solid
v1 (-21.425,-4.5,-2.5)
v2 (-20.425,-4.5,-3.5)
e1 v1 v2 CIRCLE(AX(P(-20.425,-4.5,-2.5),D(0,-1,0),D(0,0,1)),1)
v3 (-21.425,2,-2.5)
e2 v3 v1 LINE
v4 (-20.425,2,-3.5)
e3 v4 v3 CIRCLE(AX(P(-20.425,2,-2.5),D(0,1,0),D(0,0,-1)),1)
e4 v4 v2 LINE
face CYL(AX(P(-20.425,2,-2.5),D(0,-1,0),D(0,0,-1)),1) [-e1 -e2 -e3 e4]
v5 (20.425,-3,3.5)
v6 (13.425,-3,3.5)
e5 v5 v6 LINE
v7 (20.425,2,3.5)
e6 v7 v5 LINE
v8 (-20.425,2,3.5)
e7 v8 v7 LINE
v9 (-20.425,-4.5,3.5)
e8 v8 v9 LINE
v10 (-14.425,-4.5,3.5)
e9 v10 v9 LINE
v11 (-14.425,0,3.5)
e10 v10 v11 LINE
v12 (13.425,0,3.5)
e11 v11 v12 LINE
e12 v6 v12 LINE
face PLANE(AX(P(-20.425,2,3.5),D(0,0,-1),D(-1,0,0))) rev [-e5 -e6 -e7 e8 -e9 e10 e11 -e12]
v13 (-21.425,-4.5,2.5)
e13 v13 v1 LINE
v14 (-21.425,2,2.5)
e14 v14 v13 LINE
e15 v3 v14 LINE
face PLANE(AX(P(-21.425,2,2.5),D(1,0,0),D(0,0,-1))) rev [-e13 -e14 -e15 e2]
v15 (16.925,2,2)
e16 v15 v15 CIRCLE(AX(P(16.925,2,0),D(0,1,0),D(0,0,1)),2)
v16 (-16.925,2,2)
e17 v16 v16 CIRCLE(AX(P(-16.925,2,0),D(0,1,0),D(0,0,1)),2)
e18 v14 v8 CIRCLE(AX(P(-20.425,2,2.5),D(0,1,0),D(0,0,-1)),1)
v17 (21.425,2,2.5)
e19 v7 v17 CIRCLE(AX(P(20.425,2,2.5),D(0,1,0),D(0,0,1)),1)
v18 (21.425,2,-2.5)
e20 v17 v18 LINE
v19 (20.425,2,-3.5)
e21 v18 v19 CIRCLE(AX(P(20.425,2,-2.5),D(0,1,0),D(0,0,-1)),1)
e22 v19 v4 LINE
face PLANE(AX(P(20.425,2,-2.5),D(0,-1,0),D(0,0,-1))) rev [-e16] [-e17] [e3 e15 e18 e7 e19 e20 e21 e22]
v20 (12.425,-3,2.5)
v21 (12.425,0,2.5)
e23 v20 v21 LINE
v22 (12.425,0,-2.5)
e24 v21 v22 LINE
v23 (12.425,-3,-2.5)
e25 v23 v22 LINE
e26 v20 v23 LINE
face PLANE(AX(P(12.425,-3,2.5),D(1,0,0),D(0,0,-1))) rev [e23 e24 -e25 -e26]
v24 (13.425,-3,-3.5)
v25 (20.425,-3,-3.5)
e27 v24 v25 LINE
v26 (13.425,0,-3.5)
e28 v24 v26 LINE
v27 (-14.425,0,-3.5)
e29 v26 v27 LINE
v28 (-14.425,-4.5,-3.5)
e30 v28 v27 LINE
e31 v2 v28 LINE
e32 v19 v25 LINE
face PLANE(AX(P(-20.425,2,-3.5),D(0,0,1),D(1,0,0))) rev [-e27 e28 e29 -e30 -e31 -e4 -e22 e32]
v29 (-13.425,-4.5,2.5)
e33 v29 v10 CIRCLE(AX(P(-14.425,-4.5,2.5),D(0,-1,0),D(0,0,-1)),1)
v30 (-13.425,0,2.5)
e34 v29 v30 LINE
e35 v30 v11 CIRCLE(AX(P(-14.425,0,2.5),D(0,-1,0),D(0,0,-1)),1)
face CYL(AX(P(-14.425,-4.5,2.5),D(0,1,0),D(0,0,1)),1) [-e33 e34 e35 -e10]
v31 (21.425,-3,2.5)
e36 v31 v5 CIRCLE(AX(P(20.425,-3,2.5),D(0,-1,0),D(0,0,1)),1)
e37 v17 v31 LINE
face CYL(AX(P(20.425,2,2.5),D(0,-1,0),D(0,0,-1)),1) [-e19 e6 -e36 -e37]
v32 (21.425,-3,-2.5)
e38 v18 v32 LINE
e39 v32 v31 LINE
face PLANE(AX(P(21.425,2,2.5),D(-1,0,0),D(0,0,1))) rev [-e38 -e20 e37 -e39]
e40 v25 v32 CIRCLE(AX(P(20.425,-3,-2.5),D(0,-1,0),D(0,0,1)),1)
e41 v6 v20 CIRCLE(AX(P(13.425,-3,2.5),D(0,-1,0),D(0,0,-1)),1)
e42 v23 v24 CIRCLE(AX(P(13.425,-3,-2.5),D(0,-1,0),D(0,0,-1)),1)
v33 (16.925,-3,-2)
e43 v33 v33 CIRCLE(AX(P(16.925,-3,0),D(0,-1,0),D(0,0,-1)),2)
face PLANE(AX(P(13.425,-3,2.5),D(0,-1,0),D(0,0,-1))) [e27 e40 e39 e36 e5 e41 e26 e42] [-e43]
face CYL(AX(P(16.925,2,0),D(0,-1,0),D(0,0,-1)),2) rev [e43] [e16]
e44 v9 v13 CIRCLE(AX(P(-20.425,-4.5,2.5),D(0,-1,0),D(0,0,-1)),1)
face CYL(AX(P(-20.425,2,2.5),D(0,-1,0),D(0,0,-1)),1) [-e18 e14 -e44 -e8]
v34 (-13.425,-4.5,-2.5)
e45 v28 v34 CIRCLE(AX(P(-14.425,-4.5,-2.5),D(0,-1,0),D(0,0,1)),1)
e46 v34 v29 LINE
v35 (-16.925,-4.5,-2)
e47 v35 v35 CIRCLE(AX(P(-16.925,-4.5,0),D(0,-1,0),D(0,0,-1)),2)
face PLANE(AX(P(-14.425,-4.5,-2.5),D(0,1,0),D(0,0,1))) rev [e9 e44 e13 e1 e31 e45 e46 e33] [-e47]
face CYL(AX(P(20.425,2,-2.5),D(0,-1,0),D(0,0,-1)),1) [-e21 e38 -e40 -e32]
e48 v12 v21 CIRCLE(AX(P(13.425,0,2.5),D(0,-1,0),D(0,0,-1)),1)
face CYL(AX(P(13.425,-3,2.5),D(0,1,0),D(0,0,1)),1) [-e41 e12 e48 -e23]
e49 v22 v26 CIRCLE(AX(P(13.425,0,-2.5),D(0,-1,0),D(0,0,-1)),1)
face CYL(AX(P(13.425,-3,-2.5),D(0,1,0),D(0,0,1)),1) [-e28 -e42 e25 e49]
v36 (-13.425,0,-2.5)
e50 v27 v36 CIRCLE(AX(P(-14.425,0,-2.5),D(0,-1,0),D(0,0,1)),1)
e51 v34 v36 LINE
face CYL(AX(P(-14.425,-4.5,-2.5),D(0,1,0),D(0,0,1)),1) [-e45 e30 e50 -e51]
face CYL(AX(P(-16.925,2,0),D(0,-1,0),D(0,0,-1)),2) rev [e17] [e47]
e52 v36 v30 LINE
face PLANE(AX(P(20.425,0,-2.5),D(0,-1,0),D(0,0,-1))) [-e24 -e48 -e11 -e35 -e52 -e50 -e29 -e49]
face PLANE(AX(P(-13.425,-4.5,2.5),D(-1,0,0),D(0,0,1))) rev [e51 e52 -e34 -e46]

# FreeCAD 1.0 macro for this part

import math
import FreeCAD as App
import Part
import Sketcher
from FreeCAD import Vector
Q = App.Units.Quantity

doc = App.newDocument("Part")
body = doc.addObject("PartDesign::Body", "Body")

# Sketch on XZ plane
sketch1 = doc.addObject("Sketcher::SketchObject", "Sketch")
body.addObject(sketch1)
sketch1.AttachmentSupport = (doc.XZ_Plane, [""])
sketch1.MapMode = "FlatFace"
sketch1.addGeometry([
    Part.LineSegment(Vector(-20.425, 3.5, 0), Vector(20.425, 3.5, 0)),  # 0
    Part.ArcOfCircle(Part.Circle(Vector(20.425, 2.5, 0), Vector(0, 0, 1), 1), math.radians(0), math.radians(90)),  # 1
    Part.LineSegment(Vector(21.425, 2.5, 0), Vector(21.425, -2.5, 0)),  # 2
    Part.ArcOfCircle(Part.Circle(Vector(20.425, -2.5, 0), Vector(0, 0, 1), 1), math.radians(-90), math.radians(0)),  # 3
    Part.LineSegment(Vector(20.425, -3.5, 0), Vector(-20.425, -3.5, 0)),  # 4
    Part.ArcOfCircle(Part.Circle(Vector(-20.425, -2.5, 0), Vector(0, 0, 1), 1), math.radians(-180), math.radians(-90)),  # 5
    Part.LineSegment(Vector(-21.425, -2.5, 0), Vector(-21.425, 2.5, 0)),  # 6
    Part.ArcOfCircle(Part.Circle(Vector(-20.425, 2.5, 0), Vector(0, 0, 1), 1), math.radians(90), math.radians(180)),  # 7
    Part.Circle(Vector(-16.925, 0, 0), Vector(0, 0, 1), 2),  # 8
    Part.Circle(Vector(16.925, 0, 0), Vector(0, 0, 1), 2),  # 9
], False)
sketch1.addConstraint([
    Sketcher.Constraint("Tangent", 0, 2, 1, 2),
    Sketcher.Constraint("Tangent", 1, 1, 2, 1),
    Sketcher.Constraint("Tangent", 2, 2, 3, 2),
    Sketcher.Constraint("Tangent", 3, 1, 4, 1),
    Sketcher.Constraint("Tangent", 4, 2, 5, 2),
    Sketcher.Constraint("Tangent", 5, 1, 6, 1),
    Sketcher.Constraint("Tangent", 6, 2, 7, 2),
    Sketcher.Constraint("Tangent", 7, 1, 0, 1),
    Sketcher.Constraint("Horizontal", 0),
    Sketcher.Constraint("Vertical", 2),
    Sketcher.Constraint("Horizontal", 4),
    Sketcher.Constraint("Vertical", 6),
    Sketcher.Constraint("Equal", 1, 3),
    Sketcher.Constraint("Equal", 3, 5),
    Sketcher.Constraint("Equal", 5, 7),
    Sketcher.Constraint("Equal", 8, 9),
    Sketcher.Constraint("Symmetric", 1, 3, 5, 3, -1, 1),
    Sketcher.Constraint("Symmetric", 8, 3, 9, 3, -1, 1),
    Sketcher.Constraint("PointOnObject", 8, 3, -1),
    Sketcher.Constraint("Diameter", 8, Q("4 mm")),
    Sketcher.Constraint("Radius", 1, Q("1 mm")),
    Sketcher.Constraint("DistanceY", 2, 2, 2, 1, Q("5 mm")),
    Sketcher.Constraint("DistanceX", 0, 1, 0, 2, Q("40.85 mm")),
    Sketcher.Constraint("DistanceX", 5, 3, 8, 3, Q("3.5 mm")),
])
pad1 = doc.addObject("PartDesign::Pad", "Pad")
body.addObject(pad1)
pad1.Profile = sketch1
pad1.Length = 2
pad1.Reversed = True

# Sketch on XZ plane
sketch2 = doc.addObject("Sketcher::SketchObject", "Sketch001")
body.addObject(sketch2)
sketch2.AttachmentSupport = (doc.XZ_Plane, [""])
sketch2.MapMode = "FlatFace"
sketch2.AttachmentOffset = App.Placement(Vector(0, 0, 4.5), App.Rotation())
sketch2.addGeometry([
    Part.LineSegment(Vector(-20.425, -3.5, 0), Vector(-14.425, -3.5, 0)),  # 0
    Part.ArcOfCircle(Part.Circle(Vector(-14.425, -2.5, 0), Vector(0, 0, 1), 1), math.radians(-90), math.radians(0)),  # 1
    Part.LineSegment(Vector(-13.425, -2.5, 0), Vector(-13.425, 2.5, 0)),  # 2
    Part.ArcOfCircle(Part.Circle(Vector(-14.425, 2.5, 0), Vector(0, 0, 1), 1), math.radians(0), math.radians(90)),  # 3
    Part.LineSegment(Vector(-14.425, 3.5, 0), Vector(-20.425, 3.5, 0)),  # 4
    Part.ArcOfCircle(Part.Circle(Vector(-20.425, 2.5, 0), Vector(0, 0, 1), 1), math.radians(90), math.radians(180)),  # 5
    Part.LineSegment(Vector(-21.425, 2.5, 0), Vector(-21.425, -2.5, 0)),  # 6
    Part.ArcOfCircle(Part.Circle(Vector(-20.425, -2.5, 0), Vector(0, 0, 1), 1), math.radians(-180), math.radians(-90)),  # 7
    Part.Circle(Vector(-16.925, 0, 0), Vector(0, 0, 1), 2),  # 8
], False)
sketch2.addConstraint([
    Sketcher.Constraint("Tangent", 0, 2, 1, 1),
    Sketcher.Constraint("Tangent", 1, 2, 2, 1),
    Sketcher.Constraint("Tangent", 2, 2, 3, 1),
    Sketcher.Constraint("Tangent", 3, 2, 4, 1),
    Sketcher.Constraint("Tangent", 4, 2, 5, 1),
    Sketcher.Constraint("Tangent", 5, 2, 6, 1),
    Sketcher.Constraint("Tangent", 6, 2, 7, 1),
    Sketcher.Constraint("Tangent", 7, 2, 0, 1),
    Sketcher.Constraint("Horizontal", 0),
    Sketcher.Constraint("Vertical", 2),
    Sketcher.Constraint("Horizontal", 4),
    Sketcher.Constraint("Vertical", 6),
    Sketcher.Constraint("Equal", 1, 3),
    Sketcher.Constraint("Equal", 3, 5),
    Sketcher.Constraint("Equal", 5, 7),
    Sketcher.Constraint("PointOnObject", 8, 3, -1),
    Sketcher.Constraint("Diameter", 8, Q("4 mm")),
    Sketcher.Constraint("Radius", 1, Q("1 mm")),
    Sketcher.Constraint("DistanceX", 0, 1, 0, 2, Q("6 mm")),
    Sketcher.Constraint("DistanceY", 2, 1, 2, 2, Q("5 mm")),
    Sketcher.Constraint("DistanceY", 1, 3, -1, 1, Q("2.5 mm")),
    Sketcher.Constraint("DistanceX", 8, 3, 1, 3, Q("2.5 mm")),
    Sketcher.Constraint("DistanceX", 1, 3, -1, 1, Q("14.425 mm")),
])
pad2 = doc.addObject("PartDesign::Pad", "Pad001")
body.addObject(pad2)
pad2.Profile = sketch2
pad2.Length = 4.5
pad2.Reversed = True

# Sketch on XZ plane
sketch3 = doc.addObject("Sketcher::SketchObject", "Sketch002")
body.addObject(sketch3)
sketch3.AttachmentSupport = (doc.XZ_Plane, [""])
sketch3.MapMode = "FlatFace"
sketch3.AttachmentOffset = App.Placement(Vector(0, 0, 3), App.Rotation())
sketch3.addGeometry([
    Part.LineSegment(Vector(20.425, 3.5, 0), Vector(13.425, 3.5, 0)),  # 0
    Part.ArcOfCircle(Part.Circle(Vector(13.425, 2.5, 0), Vector(0, 0, 1), 1), math.radians(90), math.radians(180)),  # 1
    Part.LineSegment(Vector(12.425, 2.5, 0), Vector(12.425, -2.5, 0)),  # 2
    Part.ArcOfCircle(Part.Circle(Vector(13.425, -2.5, 0), Vector(0, 0, 1), 1), math.radians(-180), math.radians(-90)),  # 3
    Part.LineSegment(Vector(13.425, -3.5, 0), Vector(20.425, -3.5, 0)),  # 4
    Part.ArcOfCircle(Part.Circle(Vector(20.425, -2.5, 0), Vector(0, 0, 1), 1), math.radians(-90), math.radians(0)),  # 5
    Part.LineSegment(Vector(21.425, -2.5, 0), Vector(21.425, 2.5, 0)),  # 6
    Part.ArcOfCircle(Part.Circle(Vector(20.425, 2.5, 0), Vector(0, 0, 1), 1), math.radians(0), math.radians(90)),  # 7
    Part.Circle(Vector(16.925, 0, 0), Vector(0, 0, 1), 2),  # 8
], False)
sketch3.addConstraint([
    Sketcher.Constraint("Tangent", 0, 2, 1, 1),
    Sketcher.Constraint("Tangent", 1, 2, 2, 1),
    Sketcher.Constraint("Tangent", 2, 2, 3, 1),
    Sketcher.Constraint("Tangent", 3, 2, 4, 1),
    Sketcher.Constraint("Tangent", 4, 2, 5, 1),
    Sketcher.Constraint("Tangent", 5, 2, 6, 1),
    Sketcher.Constraint("Tangent", 6, 2, 7, 1),
    Sketcher.Constraint("Tangent", 7, 2, 0, 1),
    Sketcher.Constraint("Horizontal", 0),
    Sketcher.Constraint("Vertical", 2),
    Sketcher.Constraint("Horizontal", 4),
    Sketcher.Constraint("Vertical", 6),
    Sketcher.Constraint("Equal", 1, 3),
    Sketcher.Constraint("Equal", 3, 5),
    Sketcher.Constraint("Equal", 5, 7),
    Sketcher.Constraint("PointOnObject", 8, 3, -1),
    Sketcher.Constraint("Diameter", 8, Q("4 mm")),
    Sketcher.Constraint("Radius", 1, Q("1 mm")),
    Sketcher.Constraint("DistanceX", 0, 2, 0, 1, Q("7 mm")),
    Sketcher.Constraint("DistanceY", 2, 2, 2, 1, Q("5 mm")),
    Sketcher.Constraint("DistanceY", -1, 1, 1, 3, Q("2.5 mm")),
    Sketcher.Constraint("DistanceX", 1, 3, 8, 3, Q("3.5 mm")),
    Sketcher.Constraint("DistanceX", -1, 1, 1, 3, Q("13.425 mm")),
])
pad3 = doc.addObject("PartDesign::Pad", "Pad002")
body.addObject(pad3)
pad3.Profile = sketch3
pad3.Length = 3
pad3.Reversed = True

doc.recompute()
